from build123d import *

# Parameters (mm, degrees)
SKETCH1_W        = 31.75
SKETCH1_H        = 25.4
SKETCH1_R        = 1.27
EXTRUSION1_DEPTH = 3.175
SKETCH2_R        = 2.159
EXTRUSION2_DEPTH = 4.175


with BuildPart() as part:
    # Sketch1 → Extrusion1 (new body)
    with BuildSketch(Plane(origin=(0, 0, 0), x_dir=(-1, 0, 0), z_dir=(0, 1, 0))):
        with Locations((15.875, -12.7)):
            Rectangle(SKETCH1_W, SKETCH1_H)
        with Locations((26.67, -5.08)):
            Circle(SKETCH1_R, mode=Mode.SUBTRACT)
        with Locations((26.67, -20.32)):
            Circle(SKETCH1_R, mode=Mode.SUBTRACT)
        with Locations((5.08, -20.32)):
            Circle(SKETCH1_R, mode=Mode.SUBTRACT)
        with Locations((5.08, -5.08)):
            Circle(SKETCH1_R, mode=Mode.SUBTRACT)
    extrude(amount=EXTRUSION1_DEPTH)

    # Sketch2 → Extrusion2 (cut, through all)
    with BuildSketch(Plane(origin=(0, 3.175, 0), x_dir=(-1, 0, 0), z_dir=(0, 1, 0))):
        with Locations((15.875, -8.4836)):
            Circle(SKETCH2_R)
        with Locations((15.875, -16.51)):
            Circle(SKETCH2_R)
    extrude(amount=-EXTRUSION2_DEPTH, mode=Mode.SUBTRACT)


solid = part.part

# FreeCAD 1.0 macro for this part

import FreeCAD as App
import Part
import Sketcher
Q = App.Units.Quantity

doc = App.newDocument("Part")
body = doc.addObject("PartDesign::Body", "Body")

sketch1 = body.newObject("Sketcher::SketchObject", "Sketch")
sketch1.AttachmentSupport = (doc.getObject("XZ_Plane"), [""])
sketch1.MapMode = "FlatFace"
sketch1.addGeometry([
    Part.LineSegment(App.Vector(0, 0, 0), App.Vector(0, -25.4, 0)),
    Part.LineSegment(App.Vector(0, -25.4, 0), App.Vector(-31.8, -25.4, 0)),
    Part.LineSegment(App.Vector(-31.8, -25.4, 0), App.Vector(-31.8, 0, 0)),
    Part.LineSegment(App.Vector(-31.8, 0, 0), App.Vector(0, 0, 0)),
    Part.Circle(App.Vector(-5.1, -20.3, 0), App.Vector(0, 0, 1), 1.3),
    Part.Circle(App.Vector(-26.7, -20.3, 0), App.Vector(0, 0, 1), 1.3),
    Part.Circle(App.Vector(-5.1, -5.1, 0), App.Vector(0, 0, 1), 1.3),
    Part.Circle(App.Vector(-26.7, -5.1, 0), App.Vector(0, 0, 1), 1.3),
], False)
sketch1.addConstraint([
    Sketcher.Constraint("Coincident", 0, 2, 1, 1),
    Sketcher.Constraint("Coincident", 1, 2, 2, 1),
    Sketcher.Constraint("Coincident", 2, 2, 3, 1),
    Sketcher.Constraint("Coincident", 3, 2, 0, 1),
    Sketcher.Constraint("Vertical", 0),
    Sketcher.Constraint("Horizontal", 1),
    Sketcher.Constraint("Vertical", 2),
    Sketcher.Constraint("Horizontal", 3),
    Sketcher.Constraint("Coincident", 3, 2, -1, 1),
    Sketcher.Constraint("Equal", 4, 5),
    Sketcher.Constraint("Equal", 5, 6),
    Sketcher.Constraint("Equal", 6, 7),
    Sketcher.Constraint("Horizontal", 4, 3, 5, 3),
    Sketcher.Constraint("Horizontal", 6, 3, 7, 3),
    Sketcher.Constraint("Vertical", 4, 3, 6, 3),
    Sketcher.Constraint("Vertical", 5, 3, 7, 3),
    Sketcher.Constraint("Diameter", 4, Q("0.1 in")),
    Sketcher.Constraint("DistanceY", 0, 2, 0, 1, Q("1 in")),
    Sketcher.Constraint("DistanceX", 1, 2, 1, 1, Q("1.25 in")),
    Sketcher.Constraint("DistanceX", 4, 3, -1, 1, Q("0.2 in")),
    Sketcher.Constraint("DistanceY", 4, 3, -1, 1, Q("0.8 in")),
    Sketcher.Constraint("DistanceY", 6, 3, -1, 1, Q("0.2 in")),
    Sketcher.Constraint("DistanceX", 1, 2, 5, 3, Q("0.2 in")),
])
pad1 = body.newObject("PartDesign::Pad", "Pad")
pad1.Profile = sketch1
pad1.Length = Q("0.125 in")
pad1.Reversed = True

sketch2 = body.newObject("Sketcher::SketchObject", "Sketch001")
sketch2.AttachmentSupport = (doc.getObject("XZ_Plane"), [""])
sketch2.MapMode = "FlatFace"
sketch2.AttachmentOffset = App.Placement(App.Vector(0, 0, -0.125 * 25.4), App.Rotation())
sketch2.addGeometry([
    Part.Circle(App.Vector(-15.9, -8.5, 0), App.Vector(0, 0, 1), 2.2),
    Part.Circle(App.Vector(-15.9, -16.5, 0), App.Vector(0, 0, 1), 2.2),
], False)
sketch2.addConstraint([
    Sketcher.Constraint("Equal", 0, 1),
    Sketcher.Constraint("Vertical", 0, 3, 1, 3),
    Sketcher.Constraint("Diameter", 0, Q("0.17 in")),
    Sketcher.Constraint("DistanceY", 1, 3, -1, 1, Q("0.65 in")),
    Sketcher.Constraint("DistanceX", 0, 3, -1, 1, Q("0.625 in")),
    Sketcher.Constraint("DistanceY", 0, 3, -1, 1, Q("0.334 in")),
])
pocket1 = body.newObject("PartDesign::Pocket", "Pocket")
pocket1.Profile = sketch2
pocket1.Type = "ThroughAll"
pocket1.Reversed = True

doc.recompute()
